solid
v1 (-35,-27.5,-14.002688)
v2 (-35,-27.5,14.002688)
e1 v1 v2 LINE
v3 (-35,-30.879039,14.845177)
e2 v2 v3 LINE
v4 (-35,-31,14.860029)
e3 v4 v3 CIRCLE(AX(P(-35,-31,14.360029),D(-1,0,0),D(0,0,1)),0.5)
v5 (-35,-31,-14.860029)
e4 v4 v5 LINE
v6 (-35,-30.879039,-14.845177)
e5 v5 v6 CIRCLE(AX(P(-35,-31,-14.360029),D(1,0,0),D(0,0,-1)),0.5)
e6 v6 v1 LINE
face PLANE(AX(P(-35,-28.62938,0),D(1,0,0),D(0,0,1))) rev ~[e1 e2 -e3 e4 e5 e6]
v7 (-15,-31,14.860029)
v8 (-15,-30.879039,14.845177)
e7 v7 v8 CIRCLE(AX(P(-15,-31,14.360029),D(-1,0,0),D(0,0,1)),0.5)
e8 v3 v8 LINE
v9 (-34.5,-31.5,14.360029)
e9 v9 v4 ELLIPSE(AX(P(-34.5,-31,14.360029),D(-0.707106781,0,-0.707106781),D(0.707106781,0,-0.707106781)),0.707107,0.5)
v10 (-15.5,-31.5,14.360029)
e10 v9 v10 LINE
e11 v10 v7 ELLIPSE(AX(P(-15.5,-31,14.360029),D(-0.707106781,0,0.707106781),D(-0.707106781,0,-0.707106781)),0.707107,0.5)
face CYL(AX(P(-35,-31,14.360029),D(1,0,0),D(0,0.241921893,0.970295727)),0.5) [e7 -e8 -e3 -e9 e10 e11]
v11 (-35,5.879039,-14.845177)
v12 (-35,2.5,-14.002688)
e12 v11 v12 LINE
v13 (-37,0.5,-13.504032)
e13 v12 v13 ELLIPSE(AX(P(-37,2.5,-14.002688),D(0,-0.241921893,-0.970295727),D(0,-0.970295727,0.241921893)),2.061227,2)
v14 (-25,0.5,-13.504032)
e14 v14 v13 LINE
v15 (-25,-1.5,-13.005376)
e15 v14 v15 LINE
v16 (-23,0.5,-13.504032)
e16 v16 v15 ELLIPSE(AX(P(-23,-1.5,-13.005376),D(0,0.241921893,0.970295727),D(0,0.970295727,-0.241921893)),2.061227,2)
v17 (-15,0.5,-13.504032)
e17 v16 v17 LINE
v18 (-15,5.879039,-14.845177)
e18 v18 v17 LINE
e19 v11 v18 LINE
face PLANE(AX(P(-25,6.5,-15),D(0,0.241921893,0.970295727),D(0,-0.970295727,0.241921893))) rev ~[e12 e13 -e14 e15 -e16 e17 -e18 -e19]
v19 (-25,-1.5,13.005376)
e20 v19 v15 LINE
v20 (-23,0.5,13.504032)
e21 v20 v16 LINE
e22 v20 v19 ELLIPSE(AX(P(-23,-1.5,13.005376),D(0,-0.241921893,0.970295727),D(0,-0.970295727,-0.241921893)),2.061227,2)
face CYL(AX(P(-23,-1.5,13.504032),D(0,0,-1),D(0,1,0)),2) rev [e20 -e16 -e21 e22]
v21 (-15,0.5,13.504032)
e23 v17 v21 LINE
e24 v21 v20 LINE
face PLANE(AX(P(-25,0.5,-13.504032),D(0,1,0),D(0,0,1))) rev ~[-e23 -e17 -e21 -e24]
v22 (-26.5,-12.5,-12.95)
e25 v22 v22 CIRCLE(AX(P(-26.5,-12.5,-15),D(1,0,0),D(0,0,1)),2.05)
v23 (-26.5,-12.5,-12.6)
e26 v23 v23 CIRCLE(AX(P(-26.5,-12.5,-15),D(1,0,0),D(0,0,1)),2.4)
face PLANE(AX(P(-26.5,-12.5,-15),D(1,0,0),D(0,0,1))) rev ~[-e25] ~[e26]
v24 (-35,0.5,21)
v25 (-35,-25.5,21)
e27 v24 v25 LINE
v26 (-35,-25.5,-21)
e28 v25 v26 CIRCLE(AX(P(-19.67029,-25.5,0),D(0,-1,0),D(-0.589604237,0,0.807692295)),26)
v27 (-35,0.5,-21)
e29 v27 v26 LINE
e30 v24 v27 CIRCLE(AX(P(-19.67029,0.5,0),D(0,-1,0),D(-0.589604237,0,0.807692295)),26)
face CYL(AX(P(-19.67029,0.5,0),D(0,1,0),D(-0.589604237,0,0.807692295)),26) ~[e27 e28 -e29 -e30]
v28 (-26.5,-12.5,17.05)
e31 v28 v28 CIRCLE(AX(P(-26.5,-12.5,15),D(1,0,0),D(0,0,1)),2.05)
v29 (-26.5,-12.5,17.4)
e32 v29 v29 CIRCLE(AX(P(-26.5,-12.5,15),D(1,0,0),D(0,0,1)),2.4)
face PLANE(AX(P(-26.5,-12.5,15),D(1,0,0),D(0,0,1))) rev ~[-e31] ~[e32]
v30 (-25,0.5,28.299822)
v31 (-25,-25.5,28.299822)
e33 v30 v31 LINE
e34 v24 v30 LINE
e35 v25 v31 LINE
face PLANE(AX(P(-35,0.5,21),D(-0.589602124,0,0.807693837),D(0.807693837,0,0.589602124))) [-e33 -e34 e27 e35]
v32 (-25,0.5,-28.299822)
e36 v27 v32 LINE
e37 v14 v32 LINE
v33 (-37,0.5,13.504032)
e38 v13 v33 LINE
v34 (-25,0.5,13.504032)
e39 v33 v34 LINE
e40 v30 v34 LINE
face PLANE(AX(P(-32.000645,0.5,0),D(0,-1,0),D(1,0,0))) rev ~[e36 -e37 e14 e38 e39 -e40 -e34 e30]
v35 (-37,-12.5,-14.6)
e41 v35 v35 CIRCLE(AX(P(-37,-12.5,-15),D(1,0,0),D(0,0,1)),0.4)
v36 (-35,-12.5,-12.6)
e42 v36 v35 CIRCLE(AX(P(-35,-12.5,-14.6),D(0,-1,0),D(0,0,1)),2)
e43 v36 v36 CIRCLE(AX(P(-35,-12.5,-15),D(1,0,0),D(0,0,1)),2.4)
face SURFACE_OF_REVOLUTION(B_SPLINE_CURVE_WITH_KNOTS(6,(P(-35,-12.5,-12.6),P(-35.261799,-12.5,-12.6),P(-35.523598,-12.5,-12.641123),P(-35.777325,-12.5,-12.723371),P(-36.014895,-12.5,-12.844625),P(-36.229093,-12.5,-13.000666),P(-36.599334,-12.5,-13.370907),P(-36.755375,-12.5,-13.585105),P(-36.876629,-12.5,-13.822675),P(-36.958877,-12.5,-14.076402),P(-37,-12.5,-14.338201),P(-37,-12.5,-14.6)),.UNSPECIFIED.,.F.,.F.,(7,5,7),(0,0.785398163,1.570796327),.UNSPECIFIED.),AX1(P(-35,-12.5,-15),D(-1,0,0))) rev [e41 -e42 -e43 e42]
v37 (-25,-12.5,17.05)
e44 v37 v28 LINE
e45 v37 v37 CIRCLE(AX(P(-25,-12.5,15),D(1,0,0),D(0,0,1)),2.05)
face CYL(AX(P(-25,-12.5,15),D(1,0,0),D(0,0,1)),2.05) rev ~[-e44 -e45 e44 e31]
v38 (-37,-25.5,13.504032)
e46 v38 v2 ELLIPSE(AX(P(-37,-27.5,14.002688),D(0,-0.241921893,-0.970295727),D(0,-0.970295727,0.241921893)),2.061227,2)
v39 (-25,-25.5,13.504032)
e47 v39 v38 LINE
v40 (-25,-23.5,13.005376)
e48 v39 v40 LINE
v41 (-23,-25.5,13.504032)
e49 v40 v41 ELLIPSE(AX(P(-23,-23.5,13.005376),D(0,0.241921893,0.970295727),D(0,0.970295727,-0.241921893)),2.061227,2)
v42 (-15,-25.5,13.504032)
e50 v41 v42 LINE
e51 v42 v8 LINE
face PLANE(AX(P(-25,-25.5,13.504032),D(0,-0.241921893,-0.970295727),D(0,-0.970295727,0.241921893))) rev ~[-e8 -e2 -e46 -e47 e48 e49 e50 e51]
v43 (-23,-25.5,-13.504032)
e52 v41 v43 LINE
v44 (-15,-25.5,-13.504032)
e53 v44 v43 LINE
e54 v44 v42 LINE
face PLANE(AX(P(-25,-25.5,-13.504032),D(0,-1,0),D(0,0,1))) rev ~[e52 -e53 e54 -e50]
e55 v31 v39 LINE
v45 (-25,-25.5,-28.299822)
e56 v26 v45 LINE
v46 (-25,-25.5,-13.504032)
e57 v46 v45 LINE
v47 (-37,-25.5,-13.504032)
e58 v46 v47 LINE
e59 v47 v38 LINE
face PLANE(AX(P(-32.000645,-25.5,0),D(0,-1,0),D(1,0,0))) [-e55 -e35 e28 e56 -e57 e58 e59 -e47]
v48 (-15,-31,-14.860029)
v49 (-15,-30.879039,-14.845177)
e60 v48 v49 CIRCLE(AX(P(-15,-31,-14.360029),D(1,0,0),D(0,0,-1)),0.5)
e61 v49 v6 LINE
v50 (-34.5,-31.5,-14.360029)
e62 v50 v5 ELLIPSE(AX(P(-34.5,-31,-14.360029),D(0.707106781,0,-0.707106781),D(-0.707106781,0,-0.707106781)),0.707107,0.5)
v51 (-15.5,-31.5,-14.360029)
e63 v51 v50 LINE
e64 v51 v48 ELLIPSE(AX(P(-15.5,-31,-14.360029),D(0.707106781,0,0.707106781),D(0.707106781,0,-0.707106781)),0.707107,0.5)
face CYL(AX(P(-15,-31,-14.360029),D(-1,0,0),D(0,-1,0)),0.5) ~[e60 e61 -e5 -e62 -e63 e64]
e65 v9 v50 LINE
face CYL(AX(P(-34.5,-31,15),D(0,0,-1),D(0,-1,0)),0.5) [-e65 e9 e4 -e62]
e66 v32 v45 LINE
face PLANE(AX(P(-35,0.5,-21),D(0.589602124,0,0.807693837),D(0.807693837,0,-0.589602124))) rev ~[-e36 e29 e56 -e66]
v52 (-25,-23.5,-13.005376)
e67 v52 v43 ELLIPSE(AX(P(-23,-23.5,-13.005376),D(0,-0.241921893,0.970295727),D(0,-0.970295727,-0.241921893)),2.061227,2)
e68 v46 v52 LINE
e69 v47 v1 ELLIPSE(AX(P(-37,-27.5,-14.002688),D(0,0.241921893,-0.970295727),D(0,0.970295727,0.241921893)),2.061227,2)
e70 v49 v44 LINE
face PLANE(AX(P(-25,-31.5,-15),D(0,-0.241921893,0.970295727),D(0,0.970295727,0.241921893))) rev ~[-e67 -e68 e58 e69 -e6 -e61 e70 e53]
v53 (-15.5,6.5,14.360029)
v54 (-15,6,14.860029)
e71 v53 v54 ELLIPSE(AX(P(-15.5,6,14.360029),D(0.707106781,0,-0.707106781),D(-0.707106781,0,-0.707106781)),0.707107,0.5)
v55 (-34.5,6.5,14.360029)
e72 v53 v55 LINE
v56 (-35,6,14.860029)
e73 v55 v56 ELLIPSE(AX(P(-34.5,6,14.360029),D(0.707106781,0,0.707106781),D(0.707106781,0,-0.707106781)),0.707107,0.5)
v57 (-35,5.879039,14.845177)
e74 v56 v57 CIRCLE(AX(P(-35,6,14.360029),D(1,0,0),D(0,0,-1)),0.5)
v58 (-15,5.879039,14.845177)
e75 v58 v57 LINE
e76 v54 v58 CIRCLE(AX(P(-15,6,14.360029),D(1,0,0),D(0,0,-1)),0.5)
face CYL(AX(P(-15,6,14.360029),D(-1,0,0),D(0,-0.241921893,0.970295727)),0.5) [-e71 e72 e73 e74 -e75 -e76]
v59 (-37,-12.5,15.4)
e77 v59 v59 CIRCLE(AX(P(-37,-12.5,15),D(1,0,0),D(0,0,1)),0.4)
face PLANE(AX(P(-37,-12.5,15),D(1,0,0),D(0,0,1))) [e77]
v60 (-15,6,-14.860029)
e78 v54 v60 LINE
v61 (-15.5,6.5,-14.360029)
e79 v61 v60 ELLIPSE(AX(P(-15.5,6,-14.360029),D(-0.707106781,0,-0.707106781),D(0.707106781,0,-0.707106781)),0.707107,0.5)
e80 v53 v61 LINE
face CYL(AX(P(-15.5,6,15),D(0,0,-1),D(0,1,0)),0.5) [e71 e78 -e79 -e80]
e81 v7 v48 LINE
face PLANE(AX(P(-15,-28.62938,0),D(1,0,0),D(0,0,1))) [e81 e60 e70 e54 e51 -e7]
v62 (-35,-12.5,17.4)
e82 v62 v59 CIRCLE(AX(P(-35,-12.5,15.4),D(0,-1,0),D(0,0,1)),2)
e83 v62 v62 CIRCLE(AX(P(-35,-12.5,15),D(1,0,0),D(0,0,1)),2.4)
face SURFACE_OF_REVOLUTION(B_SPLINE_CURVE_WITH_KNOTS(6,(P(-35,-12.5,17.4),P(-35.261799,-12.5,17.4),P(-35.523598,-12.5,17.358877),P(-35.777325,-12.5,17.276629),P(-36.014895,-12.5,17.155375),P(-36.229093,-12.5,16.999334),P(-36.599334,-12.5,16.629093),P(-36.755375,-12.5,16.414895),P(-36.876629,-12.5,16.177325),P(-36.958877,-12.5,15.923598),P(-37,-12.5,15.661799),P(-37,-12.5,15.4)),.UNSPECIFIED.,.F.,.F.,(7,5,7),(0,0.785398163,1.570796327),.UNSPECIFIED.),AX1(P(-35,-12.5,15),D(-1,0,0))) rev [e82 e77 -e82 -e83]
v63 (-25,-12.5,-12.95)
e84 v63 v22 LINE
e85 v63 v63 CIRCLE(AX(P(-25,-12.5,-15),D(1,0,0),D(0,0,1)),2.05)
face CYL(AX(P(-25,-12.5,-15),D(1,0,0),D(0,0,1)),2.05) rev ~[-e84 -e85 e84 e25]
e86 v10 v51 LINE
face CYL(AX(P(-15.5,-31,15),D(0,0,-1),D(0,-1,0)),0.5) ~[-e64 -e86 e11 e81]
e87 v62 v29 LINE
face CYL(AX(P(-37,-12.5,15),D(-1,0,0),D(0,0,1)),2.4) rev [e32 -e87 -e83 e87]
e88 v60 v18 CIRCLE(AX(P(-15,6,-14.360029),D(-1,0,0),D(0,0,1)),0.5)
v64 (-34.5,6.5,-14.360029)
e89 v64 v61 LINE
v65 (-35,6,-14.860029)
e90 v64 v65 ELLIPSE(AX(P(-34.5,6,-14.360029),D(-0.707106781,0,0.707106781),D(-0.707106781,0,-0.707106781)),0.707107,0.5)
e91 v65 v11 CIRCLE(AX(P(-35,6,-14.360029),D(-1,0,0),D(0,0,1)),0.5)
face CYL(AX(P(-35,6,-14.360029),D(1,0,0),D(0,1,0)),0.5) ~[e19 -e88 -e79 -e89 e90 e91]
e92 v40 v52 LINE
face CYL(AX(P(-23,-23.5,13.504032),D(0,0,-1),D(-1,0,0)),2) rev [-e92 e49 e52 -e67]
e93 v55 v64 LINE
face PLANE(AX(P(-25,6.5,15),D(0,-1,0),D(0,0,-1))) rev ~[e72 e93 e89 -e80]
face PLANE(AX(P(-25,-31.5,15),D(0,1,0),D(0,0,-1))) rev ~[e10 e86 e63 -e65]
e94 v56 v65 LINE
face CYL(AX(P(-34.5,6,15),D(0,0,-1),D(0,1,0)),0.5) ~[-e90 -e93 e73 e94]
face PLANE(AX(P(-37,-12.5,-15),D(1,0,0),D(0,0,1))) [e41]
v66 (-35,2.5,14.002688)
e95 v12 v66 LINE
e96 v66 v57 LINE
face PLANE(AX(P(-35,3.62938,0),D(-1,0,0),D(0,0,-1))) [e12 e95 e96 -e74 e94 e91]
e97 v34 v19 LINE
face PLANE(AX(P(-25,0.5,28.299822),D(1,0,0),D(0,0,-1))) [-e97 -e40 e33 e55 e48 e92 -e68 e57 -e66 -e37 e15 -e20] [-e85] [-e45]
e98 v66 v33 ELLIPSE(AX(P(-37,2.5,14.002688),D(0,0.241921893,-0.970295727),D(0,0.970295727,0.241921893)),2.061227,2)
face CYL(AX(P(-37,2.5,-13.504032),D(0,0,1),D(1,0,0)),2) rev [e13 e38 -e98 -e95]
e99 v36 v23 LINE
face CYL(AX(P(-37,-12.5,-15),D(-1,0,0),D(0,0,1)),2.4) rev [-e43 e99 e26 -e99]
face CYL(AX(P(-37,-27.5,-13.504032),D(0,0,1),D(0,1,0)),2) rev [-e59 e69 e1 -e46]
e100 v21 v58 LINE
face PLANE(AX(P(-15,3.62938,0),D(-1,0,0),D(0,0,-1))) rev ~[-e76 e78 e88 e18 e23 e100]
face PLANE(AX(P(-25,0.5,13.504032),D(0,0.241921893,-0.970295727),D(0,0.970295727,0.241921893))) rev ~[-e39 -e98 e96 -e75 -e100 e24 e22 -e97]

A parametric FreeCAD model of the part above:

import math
import FreeCAD as App
import Part
import Sketcher
Q = App.Units.Quantity


def edges_at(feature, points):
    """Names of the edges that pass closest to the given points."""
    edges = feature.Shape.Edges
    near = lambda p: min(range(len(edges)), key=lambda i: edges[i].distToShape(Part.Vertex(*p))[0])
    return sorted({f"Edge{near(p) + 1}" for p in points})

doc = App.newDocument("Part")
params = doc.addObject("Spreadsheet::Sheet", "Params")
for row, (alias, value) in enumerate([
    ("sketch1_radius", "26 mm"),
    ("pad1_length", "26 mm"),
    ("sketch2_diameter", "4.1 mm"),
    ("pocket1_length", "12 mm"),
    ("sketch3_diameter", "4.8 mm"),
    ("pocket2_length", "10.5 mm"),
    ("sketch4_height", "30 mm"),
    ("pad2_length", "20 mm"),
    ("fillet_radius", "2 mm"),
    ("fillet2_radius", "0.5 mm"),
    ("fillet3_radius", "2 mm"),
], start=1):
    params.set(f"A{row}", alias)
    params.set(f"B{row}", "=" + value)
    params.setAlias(f"B{row}", alias)

body = doc.addObject("PartDesign::Body", "Body")

# Sketch on XZ plane
sketch1 = body.newObject("Sketcher::SketchObject", "Sketch")
sketch1.AttachmentSupport = (doc.getObject("XZ_Plane"), [""])
sketch1.MapMode = "FlatFace"
sketch1.addGeometry(Part.ArcOfCircle(Part.Circle(App.Vector(-20, 0, 0), App.Vector(0, 0, 1), 26), math.radians(126), math.radians(234)), False)
sketch1.addGeometry(Part.LineSegment(App.Vector(-35, -21, 0), App.Vector(-25, -28, 0)), False)
sketch1.addGeometry(Part.LineSegment(App.Vector(-25, -28, 0), App.Vector(-25, 28, 0)), False)
sketch1.addGeometry(Part.LineSegment(App.Vector(-25, 28, 0), App.Vector(-35, 21, 0)), False)
sketch1.addConstraint(Sketcher.Constraint("Coincident", 0, 2, 1, 1))
sketch1.addConstraint(Sketcher.Constraint("Coincident", 1, 2, 2, 1))
sketch1.addConstraint(Sketcher.Constraint("Coincident", 2, 2, 3, 1))
sketch1.addConstraint(Sketcher.Constraint("Coincident", 3, 2, 0, 1))
sketch1.addConstraint(Sketcher.Constraint("Vertical", 2))
sketch1.addConstraint(Sketcher.Constraint("Symmetric", 0, 2, 3, 2, -1))
sketch1.addConstraint(Sketcher.Constraint("Equal", 1, 3))
sketch1.addConstraint(Sketcher.Constraint("Radius", 0, 26.0))
sketch1.addConstraint(Sketcher.Constraint("DistanceX", 0, 2, -1, 1, 35.0))
sketch1.addConstraint(Sketcher.Constraint("DistanceY", 0, 2, -1, 1, 21.0))
sketch1.addConstraint(Sketcher.Constraint("DistanceX", 1, 2, -1, 1, 25.0))
sketch1.addConstraint(Sketcher.Constraint("Distance", 1, 12.380929))
sketch1.setExpression("Constraints[7]", "Params.sketch1_radius")
pad1 = body.newObject("PartDesign::Pad", "Pad")
pad1.Profile = sketch1
pad1.setExpression("Length", "Params.pad1_length")

# Sketch on YZ plane
sketch2 = body.newObject("Sketcher::SketchObject", "Sketch001")
sketch2.AttachmentSupport = (doc.getObject("YZ_Plane"), [""])
sketch2.MapMode = "FlatFace"
sketch2.AttachmentOffset = App.Placement(App.Vector(0, 0, -25), App.Rotation())
sketch2.addGeometry(Part.Circle(App.Vector(-13, -15, 0), App.Vector(0, 0, 1), 2), False)
sketch2.addGeometry(Part.Circle(App.Vector(-13, 15, 0), App.Vector(0, 0, 1), 2), False)
sketch2.addConstraint(Sketcher.Constraint("Equal", 0, 1))
sketch2.addConstraint(Sketcher.Constraint("Symmetric", 0, 3, 1, 3, -1))
sketch2.addConstraint(Sketcher.Constraint("Diameter", 0, 4.1))
sketch2.addConstraint(Sketcher.Constraint("DistanceX", 0, 3, -1, 1, 13.0))
sketch2.addConstraint(Sketcher.Constraint("DistanceY", 0, 3, -1, 1, 15.0))
sketch2.setExpression("Constraints[2]", "Params.sketch2_diameter")
pocket1 = body.newObject("PartDesign::Pocket", "Pocket")
pocket1.Profile = sketch2
pocket1.setExpression("Length", "Params.pocket1_length")

# Sketch on YZ plane
sketch3 = body.newObject("Sketcher::SketchObject", "Sketch002")
sketch3.AttachmentSupport = (doc.getObject("YZ_Plane"), [""])
sketch3.MapMode = "FlatFace"
sketch3.AttachmentOffset = App.Placement(App.Vector(0, 0, -37), App.Rotation())
sketch3.addGeometry(Part.Circle(App.Vector(-13, -15, 0), App.Vector(0, 0, 1), 2.4), False)
sketch3.addGeometry(Part.Circle(App.Vector(-13, 15, 0), App.Vector(0, 0, 1), 2.4), False)
sketch3.addConstraint(Sketcher.Constraint("Equal", 0, 1))
sketch3.addConstraint(Sketcher.Constraint("Symmetric", 0, 3, 1, 3, -1))
sketch3.addConstraint(Sketcher.Constraint("Diameter", 0, 4.8))
sketch3.addConstraint(Sketcher.Constraint("DistanceX", 0, 3, -1, 1, 13.0))
sketch3.addConstraint(Sketcher.Constraint("DistanceY", 0, 3, -1, 1, 15.0))
sketch3.setExpression("Constraints[2]", "Params.sketch3_diameter")
pocket2 = body.newObject("PartDesign::Pocket", "Pocket001")
pocket2.Profile = sketch3
pocket2.setExpression("Length", "Params.pocket2_length")
pocket2.Reversed = True

# Sketch on YZ plane
sketch4 = body.newObject("Sketcher::SketchObject", "Sketch003")
sketch4.AttachmentSupport = (doc.getObject("YZ_Plane"), [""])
sketch4.MapMode = "FlatFace"
sketch4.AttachmentOffset = App.Placement(App.Vector(0, 0, -25), App.Rotation())
sketch4.addGeometry(Part.LineSegment(App.Vector(-26, -14, 0), App.Vector(-26, 14, 0)), False)
sketch4.addGeometry(Part.LineSegment(App.Vector(-26, 14, 0), App.Vector(-32, 15, 0)), False)
sketch4.addGeometry(Part.LineSegment(App.Vector(-32, 15, 0), App.Vector(-32, -15, 0)), False)
sketch4.addGeometry(Part.LineSegment(App.Vector(-32, -15, 0), App.Vector(-26, -14, 0)), False)
sketch4.addGeometry(Part.LineSegment(App.Vector(0, 14, 0), App.Vector(0, -14, 0)), False)
sketch4.addGeometry(Part.LineSegment(App.Vector(0, -14, 0), App.Vector(6, -15, 0)), False)
sketch4.addGeometry(Part.LineSegment(App.Vector(6, -15, 0), App.Vector(6, 15, 0)), False)
sketch4.addGeometry(Part.LineSegment(App.Vector(6, 15, 0), App.Vector(0, 14, 0)), False)
sketch4.addConstraint(Sketcher.Constraint("Coincident", 0, 2, 1, 1))
sketch4.addConstraint(Sketcher.Constraint("Coincident", 1, 2, 2, 1))
sketch4.addConstraint(Sketcher.Constraint("Coincident", 2, 2, 3, 1))
sketch4.addConstraint(Sketcher.Constraint("Coincident", 3, 2, 0, 1))
sketch4.addConstraint(Sketcher.Constraint("Coincident", 4, 2, 5, 1))
sketch4.addConstraint(Sketcher.Constraint("Coincident", 5, 2, 6, 1))
sketch4.addConstraint(Sketcher.Constraint("Coincident", 6, 2, 7, 1))
sketch4.addConstraint(Sketcher.Constraint("Coincident", 7, 2, 4, 1))
sketch4.addConstraint(Sketcher.Constraint("Vertical", 0))
sketch4.addConstraint(Sketcher.Constraint("Vertical", 2))
sketch4.addConstraint(Sketcher.Constraint("Vertical", 4))
sketch4.addConstraint(Sketcher.Constraint("Vertical", 6))
sketch4.addConstraint(Sketcher.Constraint("Symmetric", 4, 2, 7, 2, -1, 1))
sketch4.addConstraint(Sketcher.Constraint("Parallel", 1, 5))
sketch4.addConstraint(Sketcher.Constraint("Parallel", 3, 7))
sketch4.addConstraint(Sketcher.Constraint("Horizontal", 3, 2, 4, 2))
sketch4.addConstraint(Sketcher.Constraint("Horizontal", 2, 2, 5, 2))
sketch4.addConstraint(Sketcher.Constraint("Horizontal", 1, 2, 6, 2))
sketch4.addConstraint(Sketcher.Constraint("Horizontal", 0, 2, 7, 2))
sketch4.addConstraint(Sketcher.Constraint("DistanceY", 2, 2, 2, 1, 30.0))
sketch4.addConstraint(Sketcher.Constraint("Angle", 1, Q("166 deg")))
sketch4.addConstraint(Sketcher.Constraint("DistanceX", 0, 2, -1, 1, 26.0))
sketch4.addConstraint(Sketcher.Constraint("DistanceX", 1, 2, -1, 1, 32.0))
sketch4.setExpression("Constraints[19]", "Params.sketch4_height")
pad2 = body.newObject("PartDesign::Pad", "Pad001")
pad2.Profile = sketch4
pad2.setExpression("Length", "Params.pad2_length")
pad2.Midplane = True
doc.recompute()

fillet = body.newObject("PartDesign::Fillet", "Fillet")
fillet.Base = (pad2, edges_at(pad2, [
    (-25, -26, 0),
    (-25, 0, 0),
    (-35, 0, 0),
    (-35, -26, 0),
]))
fillet.setExpression("Radius", "Params.fillet_radius")
doc.recompute()

fillet2 = body.newObject("PartDesign::Fillet", "Fillet001")
fillet2.Base = (fillet, edges_at(fillet, [
    (-15, 6, 0),
    (-25, 6, -15),
    (-35, 6, 0),
    (-25, 6, 15),
    (-25, -32, 15),
    (-15, -32, 0),
    (-25, -32, -15),
    (-35, -32, 0),
]))
fillet2.setExpression("Radius", "Params.fillet2_radius")
doc.recompute()

fillet3 = body.newObject("PartDesign::Fillet", "Fillet002")
fillet3.Base = (fillet2, edges_at(fillet2, [(-37, -13, 12.6), (-37, -13, -17.4)]))
fillet3.setExpression("Radius", "Params.fillet3_radius")
body2 = doc.addObject("PartDesign::Body", "Body001")
doc.recompute()

body.Placement = App.Placement(App.Vector(0, 0.5, 0), App.Rotation(App.Vector(0, 0, 1), 0))
boolean = body2.newObject("PartDesign::Boolean", "Boolean")
boolean.Type = "Fuse"
boolean.addObjects([body])

doc.recompute()
